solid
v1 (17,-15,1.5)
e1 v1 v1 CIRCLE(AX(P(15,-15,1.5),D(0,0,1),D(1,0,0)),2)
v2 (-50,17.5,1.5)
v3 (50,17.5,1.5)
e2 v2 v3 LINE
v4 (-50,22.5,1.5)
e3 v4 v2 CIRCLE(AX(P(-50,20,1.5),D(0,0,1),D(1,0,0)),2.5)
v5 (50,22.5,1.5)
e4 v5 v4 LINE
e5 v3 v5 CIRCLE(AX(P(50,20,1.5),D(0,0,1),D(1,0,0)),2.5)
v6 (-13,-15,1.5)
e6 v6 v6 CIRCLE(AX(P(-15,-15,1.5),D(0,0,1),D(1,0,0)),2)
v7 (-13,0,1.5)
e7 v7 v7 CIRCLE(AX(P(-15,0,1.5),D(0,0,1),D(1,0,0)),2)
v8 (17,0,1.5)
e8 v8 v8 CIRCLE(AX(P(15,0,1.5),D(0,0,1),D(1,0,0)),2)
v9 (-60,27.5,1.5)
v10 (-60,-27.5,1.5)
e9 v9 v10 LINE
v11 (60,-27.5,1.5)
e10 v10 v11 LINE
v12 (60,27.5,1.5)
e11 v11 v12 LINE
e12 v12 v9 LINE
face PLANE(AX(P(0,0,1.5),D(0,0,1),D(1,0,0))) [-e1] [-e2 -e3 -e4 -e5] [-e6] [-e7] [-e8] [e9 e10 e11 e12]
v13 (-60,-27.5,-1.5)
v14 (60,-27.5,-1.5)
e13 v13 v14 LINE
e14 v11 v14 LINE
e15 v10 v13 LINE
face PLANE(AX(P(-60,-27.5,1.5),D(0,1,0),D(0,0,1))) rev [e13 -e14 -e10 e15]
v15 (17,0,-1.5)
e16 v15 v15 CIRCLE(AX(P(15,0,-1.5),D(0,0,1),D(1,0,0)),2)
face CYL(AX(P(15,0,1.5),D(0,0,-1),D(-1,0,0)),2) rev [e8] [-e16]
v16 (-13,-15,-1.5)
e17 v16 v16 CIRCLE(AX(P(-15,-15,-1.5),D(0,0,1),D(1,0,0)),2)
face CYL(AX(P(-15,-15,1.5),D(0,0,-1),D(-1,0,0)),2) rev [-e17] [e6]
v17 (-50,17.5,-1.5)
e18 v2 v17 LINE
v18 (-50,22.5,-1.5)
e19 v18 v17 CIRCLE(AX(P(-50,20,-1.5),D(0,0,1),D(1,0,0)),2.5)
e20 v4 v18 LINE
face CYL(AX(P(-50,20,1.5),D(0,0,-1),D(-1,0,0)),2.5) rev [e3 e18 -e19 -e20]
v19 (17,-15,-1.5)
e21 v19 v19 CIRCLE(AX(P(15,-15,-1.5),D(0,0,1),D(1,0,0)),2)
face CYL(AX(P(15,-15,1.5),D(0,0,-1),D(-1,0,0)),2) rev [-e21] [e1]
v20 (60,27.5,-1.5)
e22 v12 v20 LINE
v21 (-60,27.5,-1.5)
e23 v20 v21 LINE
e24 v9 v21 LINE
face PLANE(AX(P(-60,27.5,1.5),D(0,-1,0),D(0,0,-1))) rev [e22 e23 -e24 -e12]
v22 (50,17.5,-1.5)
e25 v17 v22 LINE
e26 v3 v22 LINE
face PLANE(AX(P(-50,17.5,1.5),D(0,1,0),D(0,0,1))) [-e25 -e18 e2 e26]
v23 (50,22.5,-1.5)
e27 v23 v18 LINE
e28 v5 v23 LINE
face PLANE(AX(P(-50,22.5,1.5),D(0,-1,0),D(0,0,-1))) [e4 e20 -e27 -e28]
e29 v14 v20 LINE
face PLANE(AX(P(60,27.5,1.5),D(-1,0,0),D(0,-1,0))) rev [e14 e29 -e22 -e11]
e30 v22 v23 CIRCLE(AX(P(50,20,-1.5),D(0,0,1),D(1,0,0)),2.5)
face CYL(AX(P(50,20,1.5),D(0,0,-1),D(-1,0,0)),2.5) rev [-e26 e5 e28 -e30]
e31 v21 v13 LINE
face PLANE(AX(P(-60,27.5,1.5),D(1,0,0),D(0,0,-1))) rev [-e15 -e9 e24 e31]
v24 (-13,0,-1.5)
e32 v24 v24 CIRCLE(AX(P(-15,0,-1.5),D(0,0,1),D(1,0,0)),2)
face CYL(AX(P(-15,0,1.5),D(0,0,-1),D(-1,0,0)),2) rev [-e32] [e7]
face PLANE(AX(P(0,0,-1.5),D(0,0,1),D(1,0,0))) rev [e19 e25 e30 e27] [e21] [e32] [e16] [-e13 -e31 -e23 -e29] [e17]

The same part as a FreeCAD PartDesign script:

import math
import FreeCAD as App
import Part
import Sketcher
from FreeCAD import Vector

doc = App.newDocument("Part")
body = doc.addObject("PartDesign::Body", "Body")

# Sketch on XY plane
sketch1 = doc.addObject("Sketcher::SketchObject", "Sketch")
body.addObject(sketch1)
sketch1.AttachmentSupport = (doc.XY_Plane, [""])
sketch1.MapMode = "FlatFace"
sketch1.addGeometry(Part.LineSegment(Vector(-60, 27.5, 0), Vector(-60, -27.5, 0)), False)
sketch1.addGeometry(Part.LineSegment(Vector(-60, -27.5, 0), Vector(60, -27.5, 0)), False)
sketch1.addGeometry(Part.LineSegment(Vector(60, -27.5, 0), Vector(60, 27.5, 0)), False)
sketch1.addGeometry(Part.LineSegment(Vector(60, 27.5, 0), Vector(-60, 27.5, 0)), False)
sketch1.addGeometry(Part.Circle(Vector(-15, -15, 0), Vector(0, 0, 1), 2), False)
sketch1.addGeometry(Part.Circle(Vector(-15, 0, 0), Vector(0, 0, 1), 2), False)
sketch1.addGeometry(Part.Circle(Vector(15, -15, 0), Vector(0, 0, 1), 2), False)
sketch1.addGeometry(Part.Circle(Vector(15, 0, 0), Vector(0, 0, 1), 2), False)
sketch1.addGeometry(Part.ArcOfCircle(Part.Circle(Vector(-50, 20, 0), Vector(0, 0, 1), 2.5), math.radians(90), math.radians(270)), False)
sketch1.addGeometry(Part.LineSegment(Vector(-50, 22.5, 0), Vector(50, 22.5, 0)), False)
sketch1.addGeometry(Part.ArcOfCircle(Part.Circle(Vector(50, 20, 0), Vector(0, 0, 1), 2.5), math.radians(-90), math.radians(90)), False)
sketch1.addGeometry(Part.LineSegment(Vector(50, 17.5, 0), Vector(-50, 17.5, 0)), False)
sketch1.addConstraint(Sketcher.Constraint("Coincident", 0, 2, 1, 1))
sketch1.addConstraint(Sketcher.Constraint("Coincident", 1, 2, 2, 1))
sketch1.addConstraint(Sketcher.Constraint("Coincident", 2, 2, 3, 1))
sketch1.addConstraint(Sketcher.Constraint("Coincident", 3, 2, 0, 1))
sketch1.addConstraint(Sketcher.Constraint("Tangent", 8, 1, 9, 1))
sketch1.addConstraint(Sketcher.Constraint("Tangent", 9, 2, 10, 2))
sketch1.addConstraint(Sketcher.Constraint("Tangent", 10, 1, 11, 1))
sketch1.addConstraint(Sketcher.Constraint("Tangent", 11, 2, 8, 2))
sketch1.addConstraint(Sketcher.Constraint("Vertical", 0))
sketch1.addConstraint(Sketcher.Constraint("Horizontal", 1))
sketch1.addConstraint(Sketcher.Constraint("Vertical", 2))
sketch1.addConstraint(Sketcher.Constraint("Horizontal", 3))
sketch1.addConstraint(Sketcher.Constraint("Horizontal", 9))
sketch1.addConstraint(Sketcher.Constraint("Horizontal", 11))
sketch1.addConstraint(Sketcher.Constraint("Equal", 4, 5))
sketch1.addConstraint(Sketcher.Constraint("Equal", 5, 6))
sketch1.addConstraint(Sketcher.Constraint("Equal", 6, 7))
sketch1.addConstraint(Sketcher.Constraint("Symmetric", 5, 3, 7, 3, -1, 1))
sketch1.addConstraint(Sketcher.Constraint("Symmetric", 0, 2, 2, 2, -1, 1))
sketch1.addConstraint(Sketcher.Constraint("Symmetric", 4, 3, 6, 3, -2))
sketch1.addConstraint(Sketcher.Constraint("PointOnObject", 5, 3, -1))
sketch1.addConstraint(Sketcher.Constraint("Vertical", 4, 3, 5, 3))
sketch1.addConstraint(Sketcher.Constraint("Diameter", 4, 4.0))
sketch1.addConstraint(Sketcher.Constraint("Radius", 8, 2.5))
sketch1.addConstraint(Sketcher.Constraint("DistanceX", 1, 1, 1, 2, 120.0))
sketch1.addConstraint(Sketcher.Constraint("DistanceX", 9, 1, 9, 2, 100.0))
sketch1.addConstraint(Sketcher.Constraint("DistanceY", 0, 2, 0, 1, 55.0))
sketch1.addConstraint(Sketcher.Constraint("DistanceX", 4, 3, -1, 1, 15.0))
sketch1.addConstraint(Sketcher.Constraint("DistanceY", 4, 3, -1, 1, 15.0))
sketch1.addConstraint(Sketcher.Constraint("DistanceX", 8, 3, -1, 1, 50.0))
sketch1.addConstraint(Sketcher.Constraint("DistanceY", -1, 1, 8, 3, 20.0))
pad1 = doc.addObject("PartDesign::Pad", "Pad")
body.addObject(pad1)
pad1.Profile = sketch1
pad1.Length = 3
pad1.Midplane = True

doc.recompute()
